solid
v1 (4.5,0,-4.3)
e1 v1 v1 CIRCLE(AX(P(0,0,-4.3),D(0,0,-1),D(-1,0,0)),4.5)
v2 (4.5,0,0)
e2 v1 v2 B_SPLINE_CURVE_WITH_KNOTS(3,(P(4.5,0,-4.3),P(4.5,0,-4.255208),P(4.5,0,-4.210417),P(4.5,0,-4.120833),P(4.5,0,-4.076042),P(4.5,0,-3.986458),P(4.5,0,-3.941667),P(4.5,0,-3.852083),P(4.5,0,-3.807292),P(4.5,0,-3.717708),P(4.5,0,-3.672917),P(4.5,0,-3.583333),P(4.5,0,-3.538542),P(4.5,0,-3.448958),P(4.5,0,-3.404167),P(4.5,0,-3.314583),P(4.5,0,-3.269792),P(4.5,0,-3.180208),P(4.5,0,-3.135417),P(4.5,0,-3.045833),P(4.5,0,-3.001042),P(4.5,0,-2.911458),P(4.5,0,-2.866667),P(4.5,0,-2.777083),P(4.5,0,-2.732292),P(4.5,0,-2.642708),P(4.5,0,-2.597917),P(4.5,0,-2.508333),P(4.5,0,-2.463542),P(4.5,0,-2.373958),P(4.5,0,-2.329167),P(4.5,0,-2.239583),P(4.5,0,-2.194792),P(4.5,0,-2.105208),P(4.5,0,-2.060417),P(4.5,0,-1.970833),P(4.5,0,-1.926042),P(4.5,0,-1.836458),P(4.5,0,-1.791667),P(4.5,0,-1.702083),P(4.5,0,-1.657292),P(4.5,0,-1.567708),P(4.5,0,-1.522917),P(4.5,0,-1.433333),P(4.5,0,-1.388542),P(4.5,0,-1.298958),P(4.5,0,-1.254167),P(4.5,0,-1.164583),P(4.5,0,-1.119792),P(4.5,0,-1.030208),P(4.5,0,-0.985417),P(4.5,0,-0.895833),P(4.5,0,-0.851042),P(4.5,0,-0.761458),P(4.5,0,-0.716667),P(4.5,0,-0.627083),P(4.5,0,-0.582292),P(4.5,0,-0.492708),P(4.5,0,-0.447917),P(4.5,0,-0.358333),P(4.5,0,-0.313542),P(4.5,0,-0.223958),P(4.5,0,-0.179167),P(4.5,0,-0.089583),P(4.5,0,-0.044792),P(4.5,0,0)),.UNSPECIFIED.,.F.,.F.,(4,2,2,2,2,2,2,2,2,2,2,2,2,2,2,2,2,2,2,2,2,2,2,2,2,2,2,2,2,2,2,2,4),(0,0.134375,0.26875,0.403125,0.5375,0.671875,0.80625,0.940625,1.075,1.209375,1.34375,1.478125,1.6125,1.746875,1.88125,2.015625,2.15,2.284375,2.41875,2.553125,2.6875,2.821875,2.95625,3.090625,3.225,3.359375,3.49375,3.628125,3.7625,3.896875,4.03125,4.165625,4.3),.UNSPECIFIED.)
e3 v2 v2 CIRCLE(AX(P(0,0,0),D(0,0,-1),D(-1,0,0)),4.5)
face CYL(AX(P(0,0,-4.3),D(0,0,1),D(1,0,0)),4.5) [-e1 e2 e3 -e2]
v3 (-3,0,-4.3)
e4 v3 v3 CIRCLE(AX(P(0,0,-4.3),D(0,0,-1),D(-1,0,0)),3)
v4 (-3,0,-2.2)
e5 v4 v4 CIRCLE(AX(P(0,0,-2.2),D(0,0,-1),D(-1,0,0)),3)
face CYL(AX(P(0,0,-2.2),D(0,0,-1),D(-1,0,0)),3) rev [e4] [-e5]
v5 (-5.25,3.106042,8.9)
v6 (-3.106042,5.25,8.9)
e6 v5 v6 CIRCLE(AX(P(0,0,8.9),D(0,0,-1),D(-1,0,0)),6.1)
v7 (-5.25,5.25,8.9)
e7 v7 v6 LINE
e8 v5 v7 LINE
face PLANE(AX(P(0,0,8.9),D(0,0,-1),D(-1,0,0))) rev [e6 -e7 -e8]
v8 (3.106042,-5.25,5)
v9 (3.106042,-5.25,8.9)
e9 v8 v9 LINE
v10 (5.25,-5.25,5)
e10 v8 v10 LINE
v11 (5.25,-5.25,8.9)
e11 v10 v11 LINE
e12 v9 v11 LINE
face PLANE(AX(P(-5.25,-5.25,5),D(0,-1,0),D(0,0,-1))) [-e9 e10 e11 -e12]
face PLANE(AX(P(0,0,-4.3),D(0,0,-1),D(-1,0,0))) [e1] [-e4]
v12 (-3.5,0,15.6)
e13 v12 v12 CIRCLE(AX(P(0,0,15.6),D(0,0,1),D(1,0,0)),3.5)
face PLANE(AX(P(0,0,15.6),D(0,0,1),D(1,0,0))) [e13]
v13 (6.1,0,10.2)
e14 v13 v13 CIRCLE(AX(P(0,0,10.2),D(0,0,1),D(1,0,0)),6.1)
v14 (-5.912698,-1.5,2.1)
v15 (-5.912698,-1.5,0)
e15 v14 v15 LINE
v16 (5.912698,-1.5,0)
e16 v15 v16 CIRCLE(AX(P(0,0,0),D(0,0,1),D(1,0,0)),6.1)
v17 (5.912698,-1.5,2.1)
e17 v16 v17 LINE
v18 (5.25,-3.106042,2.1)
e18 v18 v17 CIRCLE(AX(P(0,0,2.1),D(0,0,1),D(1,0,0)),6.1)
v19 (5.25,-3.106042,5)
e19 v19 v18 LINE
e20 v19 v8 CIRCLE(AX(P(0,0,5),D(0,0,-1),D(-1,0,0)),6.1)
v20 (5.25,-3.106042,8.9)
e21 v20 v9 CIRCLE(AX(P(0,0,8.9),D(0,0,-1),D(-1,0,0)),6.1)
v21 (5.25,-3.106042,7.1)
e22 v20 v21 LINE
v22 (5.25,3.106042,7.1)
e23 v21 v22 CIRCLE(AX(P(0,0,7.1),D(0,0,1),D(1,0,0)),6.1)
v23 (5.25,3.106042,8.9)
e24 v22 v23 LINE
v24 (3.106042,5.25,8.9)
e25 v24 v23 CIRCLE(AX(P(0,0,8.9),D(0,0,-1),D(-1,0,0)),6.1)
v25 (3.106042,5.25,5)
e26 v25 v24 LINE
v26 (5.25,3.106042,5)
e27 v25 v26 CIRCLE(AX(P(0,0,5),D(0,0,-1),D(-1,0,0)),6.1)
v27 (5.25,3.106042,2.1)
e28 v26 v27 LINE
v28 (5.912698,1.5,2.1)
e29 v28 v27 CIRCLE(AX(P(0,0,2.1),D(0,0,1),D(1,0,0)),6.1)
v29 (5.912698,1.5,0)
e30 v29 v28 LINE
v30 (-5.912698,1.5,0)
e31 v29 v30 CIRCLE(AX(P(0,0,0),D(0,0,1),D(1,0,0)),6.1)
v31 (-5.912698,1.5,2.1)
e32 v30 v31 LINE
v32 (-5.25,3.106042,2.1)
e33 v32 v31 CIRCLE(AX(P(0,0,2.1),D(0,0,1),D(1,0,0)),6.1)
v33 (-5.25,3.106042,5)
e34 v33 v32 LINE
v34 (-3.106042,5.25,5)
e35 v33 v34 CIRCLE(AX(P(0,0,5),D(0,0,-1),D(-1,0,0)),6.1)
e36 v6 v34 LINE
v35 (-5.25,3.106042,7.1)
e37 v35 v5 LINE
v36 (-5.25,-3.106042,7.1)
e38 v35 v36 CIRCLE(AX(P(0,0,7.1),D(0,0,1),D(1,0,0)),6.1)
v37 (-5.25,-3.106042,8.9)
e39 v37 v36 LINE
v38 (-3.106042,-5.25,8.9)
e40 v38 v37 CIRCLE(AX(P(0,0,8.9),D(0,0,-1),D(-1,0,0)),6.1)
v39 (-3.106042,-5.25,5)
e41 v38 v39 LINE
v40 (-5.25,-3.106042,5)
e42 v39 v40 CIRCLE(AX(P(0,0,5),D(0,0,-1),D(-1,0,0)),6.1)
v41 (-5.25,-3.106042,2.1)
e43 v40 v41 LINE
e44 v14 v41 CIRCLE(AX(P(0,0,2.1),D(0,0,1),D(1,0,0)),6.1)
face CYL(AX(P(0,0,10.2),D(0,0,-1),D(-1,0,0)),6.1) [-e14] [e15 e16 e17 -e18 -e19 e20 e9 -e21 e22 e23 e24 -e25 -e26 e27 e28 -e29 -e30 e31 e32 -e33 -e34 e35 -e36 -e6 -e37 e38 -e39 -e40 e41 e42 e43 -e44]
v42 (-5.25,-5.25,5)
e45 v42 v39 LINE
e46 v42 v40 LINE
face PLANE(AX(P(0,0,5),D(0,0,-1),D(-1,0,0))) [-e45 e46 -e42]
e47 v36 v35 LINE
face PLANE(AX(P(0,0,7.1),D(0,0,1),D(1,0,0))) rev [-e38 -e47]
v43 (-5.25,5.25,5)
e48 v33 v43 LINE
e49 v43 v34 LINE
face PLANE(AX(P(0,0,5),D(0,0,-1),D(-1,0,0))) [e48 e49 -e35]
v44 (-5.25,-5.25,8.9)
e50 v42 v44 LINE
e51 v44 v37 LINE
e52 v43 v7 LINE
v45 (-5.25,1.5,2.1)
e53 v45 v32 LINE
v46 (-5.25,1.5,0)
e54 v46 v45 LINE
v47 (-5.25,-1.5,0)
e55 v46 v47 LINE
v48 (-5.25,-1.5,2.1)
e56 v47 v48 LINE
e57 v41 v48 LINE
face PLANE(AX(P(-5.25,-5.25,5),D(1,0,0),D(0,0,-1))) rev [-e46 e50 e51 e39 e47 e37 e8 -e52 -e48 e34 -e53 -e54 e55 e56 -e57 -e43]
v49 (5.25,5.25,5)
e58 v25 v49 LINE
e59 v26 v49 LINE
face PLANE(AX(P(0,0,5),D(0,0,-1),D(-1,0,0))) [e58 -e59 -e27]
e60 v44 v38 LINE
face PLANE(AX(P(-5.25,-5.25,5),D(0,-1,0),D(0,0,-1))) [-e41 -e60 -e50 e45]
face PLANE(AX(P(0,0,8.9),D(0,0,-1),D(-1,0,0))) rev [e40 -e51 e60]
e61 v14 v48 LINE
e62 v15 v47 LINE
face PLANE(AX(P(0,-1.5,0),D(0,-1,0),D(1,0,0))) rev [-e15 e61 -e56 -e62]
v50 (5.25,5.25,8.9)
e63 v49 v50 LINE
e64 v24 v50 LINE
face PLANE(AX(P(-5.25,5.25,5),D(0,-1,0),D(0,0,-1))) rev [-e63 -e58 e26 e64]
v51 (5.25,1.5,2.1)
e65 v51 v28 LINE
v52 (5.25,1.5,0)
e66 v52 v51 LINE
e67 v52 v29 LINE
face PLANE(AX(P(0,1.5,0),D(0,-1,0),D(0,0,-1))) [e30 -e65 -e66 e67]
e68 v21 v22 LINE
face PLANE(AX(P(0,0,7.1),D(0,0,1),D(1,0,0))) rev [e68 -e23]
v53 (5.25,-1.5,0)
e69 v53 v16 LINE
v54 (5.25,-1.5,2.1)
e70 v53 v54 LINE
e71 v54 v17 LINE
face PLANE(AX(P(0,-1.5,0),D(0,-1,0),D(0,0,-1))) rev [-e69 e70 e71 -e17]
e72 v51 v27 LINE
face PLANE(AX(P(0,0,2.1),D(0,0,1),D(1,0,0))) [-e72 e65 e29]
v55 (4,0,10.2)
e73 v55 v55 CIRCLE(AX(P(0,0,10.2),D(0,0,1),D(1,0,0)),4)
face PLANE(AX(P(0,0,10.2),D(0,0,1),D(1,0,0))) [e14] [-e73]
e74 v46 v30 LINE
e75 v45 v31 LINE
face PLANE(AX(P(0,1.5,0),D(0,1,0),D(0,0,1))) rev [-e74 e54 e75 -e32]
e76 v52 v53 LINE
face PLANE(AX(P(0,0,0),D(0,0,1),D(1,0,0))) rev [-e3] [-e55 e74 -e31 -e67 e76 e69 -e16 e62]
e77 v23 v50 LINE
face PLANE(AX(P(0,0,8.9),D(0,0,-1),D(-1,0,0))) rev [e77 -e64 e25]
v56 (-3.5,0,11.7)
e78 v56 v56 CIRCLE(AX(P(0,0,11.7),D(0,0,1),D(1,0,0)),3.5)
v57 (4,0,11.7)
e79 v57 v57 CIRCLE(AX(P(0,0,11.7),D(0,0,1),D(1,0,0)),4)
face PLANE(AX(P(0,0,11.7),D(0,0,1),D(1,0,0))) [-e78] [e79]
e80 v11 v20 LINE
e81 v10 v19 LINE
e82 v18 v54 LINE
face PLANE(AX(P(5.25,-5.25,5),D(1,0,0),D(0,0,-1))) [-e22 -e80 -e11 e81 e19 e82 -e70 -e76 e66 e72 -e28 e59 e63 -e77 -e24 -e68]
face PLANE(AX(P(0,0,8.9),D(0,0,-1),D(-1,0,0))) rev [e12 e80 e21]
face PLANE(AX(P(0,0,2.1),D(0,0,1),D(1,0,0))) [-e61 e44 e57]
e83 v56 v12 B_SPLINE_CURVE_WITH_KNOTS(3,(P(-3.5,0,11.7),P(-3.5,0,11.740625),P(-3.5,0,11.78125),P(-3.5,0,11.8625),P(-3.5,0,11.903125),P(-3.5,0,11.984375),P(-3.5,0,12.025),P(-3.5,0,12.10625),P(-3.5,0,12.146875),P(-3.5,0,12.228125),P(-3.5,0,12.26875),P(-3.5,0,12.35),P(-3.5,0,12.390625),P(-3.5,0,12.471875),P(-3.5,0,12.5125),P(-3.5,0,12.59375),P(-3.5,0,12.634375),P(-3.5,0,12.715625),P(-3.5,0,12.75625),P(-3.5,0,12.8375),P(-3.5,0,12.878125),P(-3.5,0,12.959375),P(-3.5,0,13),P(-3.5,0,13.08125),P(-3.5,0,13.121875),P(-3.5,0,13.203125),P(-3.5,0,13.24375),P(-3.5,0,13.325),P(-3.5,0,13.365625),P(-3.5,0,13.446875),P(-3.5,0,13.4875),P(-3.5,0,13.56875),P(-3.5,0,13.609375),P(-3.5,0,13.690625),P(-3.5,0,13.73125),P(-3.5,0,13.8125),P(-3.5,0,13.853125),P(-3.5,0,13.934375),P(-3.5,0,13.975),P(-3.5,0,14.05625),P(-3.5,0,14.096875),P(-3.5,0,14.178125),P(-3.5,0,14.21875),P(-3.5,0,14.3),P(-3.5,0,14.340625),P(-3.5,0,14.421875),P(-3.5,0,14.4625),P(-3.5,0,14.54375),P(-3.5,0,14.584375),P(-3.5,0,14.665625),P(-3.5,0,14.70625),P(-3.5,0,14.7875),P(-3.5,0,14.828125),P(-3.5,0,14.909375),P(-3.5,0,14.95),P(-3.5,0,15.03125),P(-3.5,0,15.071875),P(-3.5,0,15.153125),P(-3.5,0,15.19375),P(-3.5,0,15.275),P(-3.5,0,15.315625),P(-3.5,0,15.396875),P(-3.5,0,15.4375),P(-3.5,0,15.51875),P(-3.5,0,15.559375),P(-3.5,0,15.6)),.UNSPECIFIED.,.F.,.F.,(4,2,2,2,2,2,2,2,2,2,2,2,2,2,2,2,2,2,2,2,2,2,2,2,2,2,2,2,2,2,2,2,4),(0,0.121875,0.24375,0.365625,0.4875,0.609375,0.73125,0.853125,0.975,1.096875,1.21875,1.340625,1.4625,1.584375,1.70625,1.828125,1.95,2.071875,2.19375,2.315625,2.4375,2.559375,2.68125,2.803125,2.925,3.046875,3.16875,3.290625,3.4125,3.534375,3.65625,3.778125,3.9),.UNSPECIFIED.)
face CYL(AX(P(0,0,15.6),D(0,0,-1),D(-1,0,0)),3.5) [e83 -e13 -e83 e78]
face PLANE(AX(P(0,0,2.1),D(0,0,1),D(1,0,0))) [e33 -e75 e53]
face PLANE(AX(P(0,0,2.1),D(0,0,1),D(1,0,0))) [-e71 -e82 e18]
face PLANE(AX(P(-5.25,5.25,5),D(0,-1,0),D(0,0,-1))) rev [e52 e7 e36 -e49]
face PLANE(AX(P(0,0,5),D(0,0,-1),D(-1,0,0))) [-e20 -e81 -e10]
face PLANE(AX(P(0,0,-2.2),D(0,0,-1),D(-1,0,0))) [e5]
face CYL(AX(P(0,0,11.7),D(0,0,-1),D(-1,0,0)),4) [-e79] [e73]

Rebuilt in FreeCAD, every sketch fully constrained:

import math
import FreeCAD as App
import Part
import Sketcher
Q = App.Units.Quantity

doc = App.newDocument("Part")
body = doc.addObject("PartDesign::Body", "Body")

sketch1 = doc.addObject("Sketcher::SketchObject", "Sketch")
body.addObject(sketch1)
sketch1.AttachmentSupport = (doc.XY_Plane, [""])
sketch1.MapMode = "FlatFace"
sketch1.addGeometry(Part.Circle(App.Vector(0, 0, 0), App.Vector(0, 0, 1), 6), False)
sketch1.addConstraint(Sketcher.Constraint("Coincident", 0, 3, -1, 1))
sketch1.addConstraint(Sketcher.Constraint("Diameter", 0, Q("12.2 mm")))
pad1 = doc.addObject("PartDesign::Pad", "Pad")
body.addObject(pad1)
pad1.Profile = sketch1
pad1.Length = 10.2

sketch2 = doc.addObject("Sketcher::SketchObject", "Sketch001")
body.addObject(sketch2)
sketch2.AttachmentSupport = (doc.XY_Plane, [""])
sketch2.MapMode = "FlatFace"
sketch2.AttachmentOffset = App.Placement(App.Vector(0, 0, 5), App.Rotation())
sketch2.addGeometry(Part.LineSegment(App.Vector(-5.2, -3.1, 0), App.Vector(-5.2, -5.2, 0)), False)
sketch2.addGeometry(Part.LineSegment(App.Vector(-5.2, -5.2, 0), App.Vector(-3.1, -5.2, 0)), False)
sketch2.addGeometry(Part.ArcOfCircle(Part.Circle(App.Vector(0, 0, 0), App.Vector(0, 0, 1), 6.1), math.radians(-149), math.radians(-121)), False)
sketch2.addGeometry(Part.ArcOfCircle(Part.Circle(App.Vector(0, 0, 0), App.Vector(0, 0, 1), 6.1), math.radians(-59), math.radians(-31)), False)
sketch2.addGeometry(Part.LineSegment(App.Vector(3.1, -5.2, 0), App.Vector(5.2, -5.2, 0)), False)
sketch2.addGeometry(Part.LineSegment(App.Vector(5.2, -5.2, 0), App.Vector(5.2, -3.1, 0)), False)
sketch2.addGeometry(Part.LineSegment(App.Vector(-5.2, 5.2, 0), App.Vector(-5.2, 3.1, 0)), False)
sketch2.addGeometry(Part.ArcOfCircle(Part.Circle(App.Vector(0, 0, 0), App.Vector(0, 0, 1), 6.1), math.radians(121), math.radians(149)), False)
sketch2.addGeometry(Part.LineSegment(App.Vector(-3.1, 5.2, 0), App.Vector(-5.2, 5.2, 0)), False)
sketch2.addGeometry(Part.ArcOfCircle(Part.Circle(App.Vector(0, 0, 0), App.Vector(0, 0, 1), 6.1), math.radians(31), math.radians(59)), False)
sketch2.addGeometry(Part.LineSegment(App.Vector(5.2, 3.1, 0), App.Vector(5.2, 5.2, 0)), False)
sketch2.addGeometry(Part.LineSegment(App.Vector(5.2, 5.2, 0), App.Vector(3.1, 5.2, 0)), False)
sketch2.addConstraint(Sketcher.Constraint("Coincident", 0, 2, 1, 1))
sketch2.addConstraint(Sketcher.Constraint("Coincident", 1, 2, 2, 2))
sketch2.addConstraint(Sketcher.Constraint("Coincident", 2, 1, 0, 1))
sketch2.addConstraint(Sketcher.Constraint("Coincident", 3, 1, 4, 1))
sketch2.addConstraint(Sketcher.Constraint("Coincident", 4, 2, 5, 1))
sketch2.addConstraint(Sketcher.Constraint("Coincident", 5, 2, 3, 2))
sketch2.addConstraint(Sketcher.Constraint("Coincident", 6, 2, 7, 2))
sketch2.addConstraint(Sketcher.Constraint("Coincident", 7, 1, 8, 1))
sketch2.addConstraint(Sketcher.Constraint("Coincident", 8, 2, 6, 1))
sketch2.addConstraint(Sketcher.Constraint("Coincident", 9, 1, 10, 1))
sketch2.addConstraint(Sketcher.Constraint("Coincident", 10, 2, 11, 1))
sketch2.addConstraint(Sketcher.Constraint("Coincident", 11, 2, 9, 2))
sketch2.addConstraint(Sketcher.Constraint("Vertical", 0))
sketch2.addConstraint(Sketcher.Constraint("Horizontal", 1))
sketch2.addConstraint(Sketcher.Constraint("Horizontal", 4))
sketch2.addConstraint(Sketcher.Constraint("Vertical", 5))
sketch2.addConstraint(Sketcher.Constraint("Vertical", 6))
sketch2.addConstraint(Sketcher.Constraint("Horizontal", 8))
sketch2.addConstraint(Sketcher.Constraint("Vertical", 10))
sketch2.addConstraint(Sketcher.Constraint("Horizontal", 11))
sketch2.addConstraint(Sketcher.Constraint("Coincident", 2, 3, -1, 1))
sketch2.addConstraint(Sketcher.Constraint("Coincident", 3, 3, -1, 1))
sketch2.addConstraint(Sketcher.Constraint("Coincident", 7, 3, -1, 1))
sketch2.addConstraint(Sketcher.Constraint("Coincident", 9, 3, -1, 1))
sketch2.addConstraint(Sketcher.Constraint("Equal", 2, 3))
sketch2.addConstraint(Sketcher.Constraint("Equal", 3, 7))
sketch2.addConstraint(Sketcher.Constraint("Equal", 7, 9))
sketch2.addConstraint(Sketcher.Constraint("Symmetric", 4, 2, 8, 2, -1, 1))
sketch2.addConstraint(Sketcher.Constraint("Symmetric", 0, 2, 10, 2, -1, 1))
sketch2.addConstraint(Sketcher.Constraint("Symmetric", 0, 2, 4, 2, -2))
sketch2.addConstraint(Sketcher.Constraint("Equal", 11, 0))
sketch2.addConstraint(Sketcher.Constraint("Radius", 2, Q("6.1 mm")))
sketch2.addConstraint(Sketcher.Constraint("DistanceX", 0, 2, -1, 1, Q("5.25 mm")))
pad2 = doc.addObject("PartDesign::Pad", "Pad001")
body.addObject(pad2)
pad2.Profile = sketch2
pad2.Length = 3.9

sketch3 = doc.addObject("Sketcher::SketchObject", "Sketch002")
body.addObject(sketch3)
sketch3.AttachmentSupport = (doc.XY_Plane, [""])
sketch3.MapMode = "FlatFace"
sketch3.AttachmentOffset = App.Placement(App.Vector(0, 0, 2.1), App.Rotation())
sketch3.addGeometry(Part.LineSegment(App.Vector(5.2, 3.1, 0), App.Vector(5.2, -3.1, 0)), False)
sketch3.addGeometry(Part.ArcOfCircle(Part.Circle(App.Vector(0, 0, 0), App.Vector(0, 0, 1), 6.1), math.radians(-31), math.radians(0)), False)
sketch3.addGeometry(Part.ArcOfCircle(Part.Circle(App.Vector(0, 0, 0), App.Vector(0, 0, 1), 6.1), math.radians(0), math.radians(31)), False)
sketch3.addGeometry(Part.ArcOfCircle(Part.Circle(App.Vector(0, 0, 0), App.Vector(0, 0, 1), 6.1), math.radians(149), math.radians(211)), False)
sketch3.addGeometry(Part.LineSegment(App.Vector(-5.2, -3.1, 0), App.Vector(-5.2, 3.1, 0)), False)
sketch3.addConstraint(Sketcher.Constraint("Coincident", 0, 2, 1, 1))
sketch3.addConstraint(Sketcher.Constraint("Tangent", 1, 2, 2, 1))
sketch3.addConstraint(Sketcher.Constraint("Coincident", 2, 2, 0, 1))
sketch3.addConstraint(Sketcher.Constraint("Coincident", 3, 1, 4, 2))
sketch3.addConstraint(Sketcher.Constraint("Coincident", 4, 1, 3, 2))
sketch3.addConstraint(Sketcher.Constraint("Vertical", 0))
sketch3.addConstraint(Sketcher.Constraint("Vertical", 4))
sketch3.addConstraint(Sketcher.Constraint("Coincident", 1, 3, -1, 1))
sketch3.addConstraint(Sketcher.Constraint("Coincident", 3, 3, -1, 1))
sketch3.addConstraint(Sketcher.Constraint("Equal", 1, 2))
sketch3.addConstraint(Sketcher.Constraint("Equal", 2, 3))
sketch3.addConstraint(Sketcher.Constraint("PointOnObject", 1, 2, -1))
sketch3.addConstraint(Sketcher.Constraint("Horizontal", 2, 2, 3, 1))
sketch3.addConstraint(Sketcher.Constraint("Radius", 1, Q("6.1 mm")))
sketch3.addConstraint(Sketcher.Constraint("DistanceX", 3, 1, 2, 2, Q("10.5 mm")))
pocket1 = doc.addObject("PartDesign::Pocket", "Pocket")
body.addObject(pocket1)
pocket1.Profile = sketch3
pocket1.Length = 5
pocket1.Reversed = True

sketch4 = doc.addObject("Sketcher::SketchObject", "Sketch003")
body.addObject(sketch4)
sketch4.AttachmentSupport = (doc.XY_Plane, [""])
sketch4.MapMode = "FlatFace"
sketch4.AttachmentOffset = App.Placement(App.Vector(0, 0, 2.1), App.Rotation())
sketch4.addGeometry(Part.LineSegment(App.Vector(-10.9, 1.5, 0), App.Vector(-10.9, -1.5, 0)), False)
sketch4.addGeometry(Part.LineSegment(App.Vector(-10.9, -1.5, 0), App.Vector(-5.2, -1.5, 0)), False)
sketch4.addGeometry(Part.LineSegment(App.Vector(-5.2, -1.5, 0), App.Vector(-5.2, 1.5, 0)), False)
sketch4.addGeometry(Part.LineSegment(App.Vector(-5.2, 1.5, 0), App.Vector(-10.9, 1.5, 0)), False)
sketch4.addGeometry(Part.LineSegment(App.Vector(5.9, 1.5, 0), App.Vector(5.2, 1.5, 0)), False)
sketch4.addGeometry(Part.LineSegment(App.Vector(5.2, 1.5, 0), App.Vector(5.2, -1.5, 0)), False)
sketch4.addGeometry(Part.LineSegment(App.Vector(5.2, -1.5, 0), App.Vector(5.9, -1.5, 0)), False)
sketch4.addGeometry(Part.ArcOfCircle(Part.Circle(App.Vector(0, 0, 0), App.Vector(0, 0, 1), 6.1), math.radians(-14), math.radians(14)), False)
sketch4.addConstraint(Sketcher.Constraint("Coincident", 0, 2, 1, 1))
sketch4.addConstraint(Sketcher.Constraint("Coincident", 1, 2, 2, 1))
sketch4.addConstraint(Sketcher.Constraint("Coincident", 2, 2, 3, 1))
sketch4.addConstraint(Sketcher.Constraint("Coincident", 3, 2, 0, 1))
sketch4.addConstraint(Sketcher.Constraint("Coincident", 4, 2, 5, 1))
sketch4.addConstraint(Sketcher.Constraint("Coincident", 5, 2, 6, 1))
sketch4.addConstraint(Sketcher.Constraint("Coincident", 6, 2, 7, 1))
sketch4.addConstraint(Sketcher.Constraint("Coincident", 7, 2, 4, 1))
sketch4.addConstraint(Sketcher.Constraint("Vertical", 0))
sketch4.addConstraint(Sketcher.Constraint("Horizontal", 1))
sketch4.addConstraint(Sketcher.Constraint("Vertical", 2))
sketch4.addConstraint(Sketcher.Constraint("Horizontal", 3))
sketch4.addConstraint(Sketcher.Constraint("Horizontal", 4))
sketch4.addConstraint(Sketcher.Constraint("Vertical", 5))
sketch4.addConstraint(Sketcher.Constraint("Horizontal", 6))
sketch4.addConstraint(Sketcher.Constraint("Coincident", 7, 3, -1, 1))
sketch4.addConstraint(Sketcher.Constraint("Symmetric", 1, 2, 4, 2, -1, 1))
sketch4.addConstraint(Sketcher.Constraint("Horizontal", 3, 2, 4, 2))
sketch4.addConstraint(Sketcher.Constraint("Horizontal", 1, 2, 5, 2))
sketch4.addConstraint(Sketcher.Constraint("Radius", 7, Q("6.1 mm")))
sketch4.addConstraint(Sketcher.Constraint("DistanceY", 0, 2, 0, 1, Q("3 mm")))
sketch4.addConstraint(Sketcher.Constraint("DistanceX", 2, 2, 4, 2, Q("10.5 mm")))
sketch4.addConstraint(Sketcher.Constraint("DistanceX", 1, 1, 1, 2, Q("5.662698 mm")))
pocket2 = doc.addObject("PartDesign::Pocket", "Pocket001")
body.addObject(pocket2)
pocket2.Profile = sketch4
pocket2.Type = "ThroughAll"

sketch5 = doc.addObject("Sketcher::SketchObject", "Sketch004")
body.addObject(sketch5)
sketch5.AttachmentSupport = (doc.XY_Plane, [""])
sketch5.MapMode = "FlatFace"
sketch5.addGeometry(Part.Circle(App.Vector(0, 0, 0), App.Vector(0, 0, 1), 4.5), False)
sketch5.addConstraint(Sketcher.Constraint("Coincident", 0, 3, -1, 1))
sketch5.addConstraint(Sketcher.Constraint("Diameter", 0, Q("9 mm")))
pad3 = doc.addObject("PartDesign::Pad", "Pad002")
body.addObject(pad3)
pad3.Profile = sketch5
pad3.Length = 4.3
pad3.Reversed = True

sketch6 = doc.addObject("Sketcher::SketchObject", "Sketch005")
body.addObject(sketch6)
sketch6.AttachmentSupport = (doc.XY_Plane, [""])
sketch6.MapMode = "FlatFace"
sketch6.AttachmentOffset = App.Placement(App.Vector(0, 0, -4.3), App.Rotation())
sketch6.addGeometry(Part.Circle(App.Vector(0, 0, 0), App.Vector(0, 0, 1), 3), False)
sketch6.addConstraint(Sketcher.Constraint("Coincident", 0, 3, -1, 1))
sketch6.addConstraint(Sketcher.Constraint("Diameter", 0, Q("6 mm")))
pocket3 = doc.addObject("PartDesign::Pocket", "Pocket002")
body.addObject(pocket3)
pocket3.Profile = sketch6
pocket3.Length = 2.1
pocket3.Reversed = True

sketch7 = doc.addObject("Sketcher::SketchObject", "Sketch006")
body.addObject(sketch7)
sketch7.AttachmentSupport = (doc.XY_Plane, [""])
sketch7.MapMode = "FlatFace"
sketch7.AttachmentOffset = App.Placement(App.Vector(0, 0, 10.2), App.Rotation())
sketch7.addGeometry(Part.Circle(App.Vector(0, 0, 0), App.Vector(0, 0, 1), 4), False)
sketch7.addGeometry(Part.Circle(App.Vector(0, 0, 0), App.Vector(0, 0, 1), 3.5), False)
sketch7.addConstraint(Sketcher.Constraint("Coincident", 0, 3, -1, 1))
sketch7.addConstraint(Sketcher.Constraint("Coincident", 1, 3, -1, 1))
sketch7.addConstraint(Sketcher.Constraint("Diameter", 0, Q("8 mm")))
sketch7.addConstraint(Sketcher.Constraint("Diameter", 1, Q("7 mm")))
pad4 = doc.addObject("PartDesign::Pad", "Pad003")
body.addObject(pad4)
pad4.Profile = sketch7
pad4.Length = 1.5

sketch8 = doc.addObject("Sketcher::SketchObject", "Sketch007")
body.addObject(sketch8)
sketch8.AttachmentSupport = (doc.XY_Plane, [""])
sketch8.MapMode = "FlatFace"
sketch8.AttachmentOffset = App.Placement(App.Vector(0, 0, 10.2), App.Rotation())
sketch8.addGeometry(Part.Circle(App.Vector(0, 0, 0), App.Vector(0, 0, 1), 3.5), False)
sketch8.addConstraint(Sketcher.Constraint("Coincident", 0, 3, -1, 1))
sketch8.addConstraint(Sketcher.Constraint("Diameter", 0, Q("7 mm")))
pad5 = doc.addObject("PartDesign::Pad", "Pad004")
body.addObject(pad5)
pad5.Profile = sketch8
pad5.Length = 5.4

doc.recompute()
